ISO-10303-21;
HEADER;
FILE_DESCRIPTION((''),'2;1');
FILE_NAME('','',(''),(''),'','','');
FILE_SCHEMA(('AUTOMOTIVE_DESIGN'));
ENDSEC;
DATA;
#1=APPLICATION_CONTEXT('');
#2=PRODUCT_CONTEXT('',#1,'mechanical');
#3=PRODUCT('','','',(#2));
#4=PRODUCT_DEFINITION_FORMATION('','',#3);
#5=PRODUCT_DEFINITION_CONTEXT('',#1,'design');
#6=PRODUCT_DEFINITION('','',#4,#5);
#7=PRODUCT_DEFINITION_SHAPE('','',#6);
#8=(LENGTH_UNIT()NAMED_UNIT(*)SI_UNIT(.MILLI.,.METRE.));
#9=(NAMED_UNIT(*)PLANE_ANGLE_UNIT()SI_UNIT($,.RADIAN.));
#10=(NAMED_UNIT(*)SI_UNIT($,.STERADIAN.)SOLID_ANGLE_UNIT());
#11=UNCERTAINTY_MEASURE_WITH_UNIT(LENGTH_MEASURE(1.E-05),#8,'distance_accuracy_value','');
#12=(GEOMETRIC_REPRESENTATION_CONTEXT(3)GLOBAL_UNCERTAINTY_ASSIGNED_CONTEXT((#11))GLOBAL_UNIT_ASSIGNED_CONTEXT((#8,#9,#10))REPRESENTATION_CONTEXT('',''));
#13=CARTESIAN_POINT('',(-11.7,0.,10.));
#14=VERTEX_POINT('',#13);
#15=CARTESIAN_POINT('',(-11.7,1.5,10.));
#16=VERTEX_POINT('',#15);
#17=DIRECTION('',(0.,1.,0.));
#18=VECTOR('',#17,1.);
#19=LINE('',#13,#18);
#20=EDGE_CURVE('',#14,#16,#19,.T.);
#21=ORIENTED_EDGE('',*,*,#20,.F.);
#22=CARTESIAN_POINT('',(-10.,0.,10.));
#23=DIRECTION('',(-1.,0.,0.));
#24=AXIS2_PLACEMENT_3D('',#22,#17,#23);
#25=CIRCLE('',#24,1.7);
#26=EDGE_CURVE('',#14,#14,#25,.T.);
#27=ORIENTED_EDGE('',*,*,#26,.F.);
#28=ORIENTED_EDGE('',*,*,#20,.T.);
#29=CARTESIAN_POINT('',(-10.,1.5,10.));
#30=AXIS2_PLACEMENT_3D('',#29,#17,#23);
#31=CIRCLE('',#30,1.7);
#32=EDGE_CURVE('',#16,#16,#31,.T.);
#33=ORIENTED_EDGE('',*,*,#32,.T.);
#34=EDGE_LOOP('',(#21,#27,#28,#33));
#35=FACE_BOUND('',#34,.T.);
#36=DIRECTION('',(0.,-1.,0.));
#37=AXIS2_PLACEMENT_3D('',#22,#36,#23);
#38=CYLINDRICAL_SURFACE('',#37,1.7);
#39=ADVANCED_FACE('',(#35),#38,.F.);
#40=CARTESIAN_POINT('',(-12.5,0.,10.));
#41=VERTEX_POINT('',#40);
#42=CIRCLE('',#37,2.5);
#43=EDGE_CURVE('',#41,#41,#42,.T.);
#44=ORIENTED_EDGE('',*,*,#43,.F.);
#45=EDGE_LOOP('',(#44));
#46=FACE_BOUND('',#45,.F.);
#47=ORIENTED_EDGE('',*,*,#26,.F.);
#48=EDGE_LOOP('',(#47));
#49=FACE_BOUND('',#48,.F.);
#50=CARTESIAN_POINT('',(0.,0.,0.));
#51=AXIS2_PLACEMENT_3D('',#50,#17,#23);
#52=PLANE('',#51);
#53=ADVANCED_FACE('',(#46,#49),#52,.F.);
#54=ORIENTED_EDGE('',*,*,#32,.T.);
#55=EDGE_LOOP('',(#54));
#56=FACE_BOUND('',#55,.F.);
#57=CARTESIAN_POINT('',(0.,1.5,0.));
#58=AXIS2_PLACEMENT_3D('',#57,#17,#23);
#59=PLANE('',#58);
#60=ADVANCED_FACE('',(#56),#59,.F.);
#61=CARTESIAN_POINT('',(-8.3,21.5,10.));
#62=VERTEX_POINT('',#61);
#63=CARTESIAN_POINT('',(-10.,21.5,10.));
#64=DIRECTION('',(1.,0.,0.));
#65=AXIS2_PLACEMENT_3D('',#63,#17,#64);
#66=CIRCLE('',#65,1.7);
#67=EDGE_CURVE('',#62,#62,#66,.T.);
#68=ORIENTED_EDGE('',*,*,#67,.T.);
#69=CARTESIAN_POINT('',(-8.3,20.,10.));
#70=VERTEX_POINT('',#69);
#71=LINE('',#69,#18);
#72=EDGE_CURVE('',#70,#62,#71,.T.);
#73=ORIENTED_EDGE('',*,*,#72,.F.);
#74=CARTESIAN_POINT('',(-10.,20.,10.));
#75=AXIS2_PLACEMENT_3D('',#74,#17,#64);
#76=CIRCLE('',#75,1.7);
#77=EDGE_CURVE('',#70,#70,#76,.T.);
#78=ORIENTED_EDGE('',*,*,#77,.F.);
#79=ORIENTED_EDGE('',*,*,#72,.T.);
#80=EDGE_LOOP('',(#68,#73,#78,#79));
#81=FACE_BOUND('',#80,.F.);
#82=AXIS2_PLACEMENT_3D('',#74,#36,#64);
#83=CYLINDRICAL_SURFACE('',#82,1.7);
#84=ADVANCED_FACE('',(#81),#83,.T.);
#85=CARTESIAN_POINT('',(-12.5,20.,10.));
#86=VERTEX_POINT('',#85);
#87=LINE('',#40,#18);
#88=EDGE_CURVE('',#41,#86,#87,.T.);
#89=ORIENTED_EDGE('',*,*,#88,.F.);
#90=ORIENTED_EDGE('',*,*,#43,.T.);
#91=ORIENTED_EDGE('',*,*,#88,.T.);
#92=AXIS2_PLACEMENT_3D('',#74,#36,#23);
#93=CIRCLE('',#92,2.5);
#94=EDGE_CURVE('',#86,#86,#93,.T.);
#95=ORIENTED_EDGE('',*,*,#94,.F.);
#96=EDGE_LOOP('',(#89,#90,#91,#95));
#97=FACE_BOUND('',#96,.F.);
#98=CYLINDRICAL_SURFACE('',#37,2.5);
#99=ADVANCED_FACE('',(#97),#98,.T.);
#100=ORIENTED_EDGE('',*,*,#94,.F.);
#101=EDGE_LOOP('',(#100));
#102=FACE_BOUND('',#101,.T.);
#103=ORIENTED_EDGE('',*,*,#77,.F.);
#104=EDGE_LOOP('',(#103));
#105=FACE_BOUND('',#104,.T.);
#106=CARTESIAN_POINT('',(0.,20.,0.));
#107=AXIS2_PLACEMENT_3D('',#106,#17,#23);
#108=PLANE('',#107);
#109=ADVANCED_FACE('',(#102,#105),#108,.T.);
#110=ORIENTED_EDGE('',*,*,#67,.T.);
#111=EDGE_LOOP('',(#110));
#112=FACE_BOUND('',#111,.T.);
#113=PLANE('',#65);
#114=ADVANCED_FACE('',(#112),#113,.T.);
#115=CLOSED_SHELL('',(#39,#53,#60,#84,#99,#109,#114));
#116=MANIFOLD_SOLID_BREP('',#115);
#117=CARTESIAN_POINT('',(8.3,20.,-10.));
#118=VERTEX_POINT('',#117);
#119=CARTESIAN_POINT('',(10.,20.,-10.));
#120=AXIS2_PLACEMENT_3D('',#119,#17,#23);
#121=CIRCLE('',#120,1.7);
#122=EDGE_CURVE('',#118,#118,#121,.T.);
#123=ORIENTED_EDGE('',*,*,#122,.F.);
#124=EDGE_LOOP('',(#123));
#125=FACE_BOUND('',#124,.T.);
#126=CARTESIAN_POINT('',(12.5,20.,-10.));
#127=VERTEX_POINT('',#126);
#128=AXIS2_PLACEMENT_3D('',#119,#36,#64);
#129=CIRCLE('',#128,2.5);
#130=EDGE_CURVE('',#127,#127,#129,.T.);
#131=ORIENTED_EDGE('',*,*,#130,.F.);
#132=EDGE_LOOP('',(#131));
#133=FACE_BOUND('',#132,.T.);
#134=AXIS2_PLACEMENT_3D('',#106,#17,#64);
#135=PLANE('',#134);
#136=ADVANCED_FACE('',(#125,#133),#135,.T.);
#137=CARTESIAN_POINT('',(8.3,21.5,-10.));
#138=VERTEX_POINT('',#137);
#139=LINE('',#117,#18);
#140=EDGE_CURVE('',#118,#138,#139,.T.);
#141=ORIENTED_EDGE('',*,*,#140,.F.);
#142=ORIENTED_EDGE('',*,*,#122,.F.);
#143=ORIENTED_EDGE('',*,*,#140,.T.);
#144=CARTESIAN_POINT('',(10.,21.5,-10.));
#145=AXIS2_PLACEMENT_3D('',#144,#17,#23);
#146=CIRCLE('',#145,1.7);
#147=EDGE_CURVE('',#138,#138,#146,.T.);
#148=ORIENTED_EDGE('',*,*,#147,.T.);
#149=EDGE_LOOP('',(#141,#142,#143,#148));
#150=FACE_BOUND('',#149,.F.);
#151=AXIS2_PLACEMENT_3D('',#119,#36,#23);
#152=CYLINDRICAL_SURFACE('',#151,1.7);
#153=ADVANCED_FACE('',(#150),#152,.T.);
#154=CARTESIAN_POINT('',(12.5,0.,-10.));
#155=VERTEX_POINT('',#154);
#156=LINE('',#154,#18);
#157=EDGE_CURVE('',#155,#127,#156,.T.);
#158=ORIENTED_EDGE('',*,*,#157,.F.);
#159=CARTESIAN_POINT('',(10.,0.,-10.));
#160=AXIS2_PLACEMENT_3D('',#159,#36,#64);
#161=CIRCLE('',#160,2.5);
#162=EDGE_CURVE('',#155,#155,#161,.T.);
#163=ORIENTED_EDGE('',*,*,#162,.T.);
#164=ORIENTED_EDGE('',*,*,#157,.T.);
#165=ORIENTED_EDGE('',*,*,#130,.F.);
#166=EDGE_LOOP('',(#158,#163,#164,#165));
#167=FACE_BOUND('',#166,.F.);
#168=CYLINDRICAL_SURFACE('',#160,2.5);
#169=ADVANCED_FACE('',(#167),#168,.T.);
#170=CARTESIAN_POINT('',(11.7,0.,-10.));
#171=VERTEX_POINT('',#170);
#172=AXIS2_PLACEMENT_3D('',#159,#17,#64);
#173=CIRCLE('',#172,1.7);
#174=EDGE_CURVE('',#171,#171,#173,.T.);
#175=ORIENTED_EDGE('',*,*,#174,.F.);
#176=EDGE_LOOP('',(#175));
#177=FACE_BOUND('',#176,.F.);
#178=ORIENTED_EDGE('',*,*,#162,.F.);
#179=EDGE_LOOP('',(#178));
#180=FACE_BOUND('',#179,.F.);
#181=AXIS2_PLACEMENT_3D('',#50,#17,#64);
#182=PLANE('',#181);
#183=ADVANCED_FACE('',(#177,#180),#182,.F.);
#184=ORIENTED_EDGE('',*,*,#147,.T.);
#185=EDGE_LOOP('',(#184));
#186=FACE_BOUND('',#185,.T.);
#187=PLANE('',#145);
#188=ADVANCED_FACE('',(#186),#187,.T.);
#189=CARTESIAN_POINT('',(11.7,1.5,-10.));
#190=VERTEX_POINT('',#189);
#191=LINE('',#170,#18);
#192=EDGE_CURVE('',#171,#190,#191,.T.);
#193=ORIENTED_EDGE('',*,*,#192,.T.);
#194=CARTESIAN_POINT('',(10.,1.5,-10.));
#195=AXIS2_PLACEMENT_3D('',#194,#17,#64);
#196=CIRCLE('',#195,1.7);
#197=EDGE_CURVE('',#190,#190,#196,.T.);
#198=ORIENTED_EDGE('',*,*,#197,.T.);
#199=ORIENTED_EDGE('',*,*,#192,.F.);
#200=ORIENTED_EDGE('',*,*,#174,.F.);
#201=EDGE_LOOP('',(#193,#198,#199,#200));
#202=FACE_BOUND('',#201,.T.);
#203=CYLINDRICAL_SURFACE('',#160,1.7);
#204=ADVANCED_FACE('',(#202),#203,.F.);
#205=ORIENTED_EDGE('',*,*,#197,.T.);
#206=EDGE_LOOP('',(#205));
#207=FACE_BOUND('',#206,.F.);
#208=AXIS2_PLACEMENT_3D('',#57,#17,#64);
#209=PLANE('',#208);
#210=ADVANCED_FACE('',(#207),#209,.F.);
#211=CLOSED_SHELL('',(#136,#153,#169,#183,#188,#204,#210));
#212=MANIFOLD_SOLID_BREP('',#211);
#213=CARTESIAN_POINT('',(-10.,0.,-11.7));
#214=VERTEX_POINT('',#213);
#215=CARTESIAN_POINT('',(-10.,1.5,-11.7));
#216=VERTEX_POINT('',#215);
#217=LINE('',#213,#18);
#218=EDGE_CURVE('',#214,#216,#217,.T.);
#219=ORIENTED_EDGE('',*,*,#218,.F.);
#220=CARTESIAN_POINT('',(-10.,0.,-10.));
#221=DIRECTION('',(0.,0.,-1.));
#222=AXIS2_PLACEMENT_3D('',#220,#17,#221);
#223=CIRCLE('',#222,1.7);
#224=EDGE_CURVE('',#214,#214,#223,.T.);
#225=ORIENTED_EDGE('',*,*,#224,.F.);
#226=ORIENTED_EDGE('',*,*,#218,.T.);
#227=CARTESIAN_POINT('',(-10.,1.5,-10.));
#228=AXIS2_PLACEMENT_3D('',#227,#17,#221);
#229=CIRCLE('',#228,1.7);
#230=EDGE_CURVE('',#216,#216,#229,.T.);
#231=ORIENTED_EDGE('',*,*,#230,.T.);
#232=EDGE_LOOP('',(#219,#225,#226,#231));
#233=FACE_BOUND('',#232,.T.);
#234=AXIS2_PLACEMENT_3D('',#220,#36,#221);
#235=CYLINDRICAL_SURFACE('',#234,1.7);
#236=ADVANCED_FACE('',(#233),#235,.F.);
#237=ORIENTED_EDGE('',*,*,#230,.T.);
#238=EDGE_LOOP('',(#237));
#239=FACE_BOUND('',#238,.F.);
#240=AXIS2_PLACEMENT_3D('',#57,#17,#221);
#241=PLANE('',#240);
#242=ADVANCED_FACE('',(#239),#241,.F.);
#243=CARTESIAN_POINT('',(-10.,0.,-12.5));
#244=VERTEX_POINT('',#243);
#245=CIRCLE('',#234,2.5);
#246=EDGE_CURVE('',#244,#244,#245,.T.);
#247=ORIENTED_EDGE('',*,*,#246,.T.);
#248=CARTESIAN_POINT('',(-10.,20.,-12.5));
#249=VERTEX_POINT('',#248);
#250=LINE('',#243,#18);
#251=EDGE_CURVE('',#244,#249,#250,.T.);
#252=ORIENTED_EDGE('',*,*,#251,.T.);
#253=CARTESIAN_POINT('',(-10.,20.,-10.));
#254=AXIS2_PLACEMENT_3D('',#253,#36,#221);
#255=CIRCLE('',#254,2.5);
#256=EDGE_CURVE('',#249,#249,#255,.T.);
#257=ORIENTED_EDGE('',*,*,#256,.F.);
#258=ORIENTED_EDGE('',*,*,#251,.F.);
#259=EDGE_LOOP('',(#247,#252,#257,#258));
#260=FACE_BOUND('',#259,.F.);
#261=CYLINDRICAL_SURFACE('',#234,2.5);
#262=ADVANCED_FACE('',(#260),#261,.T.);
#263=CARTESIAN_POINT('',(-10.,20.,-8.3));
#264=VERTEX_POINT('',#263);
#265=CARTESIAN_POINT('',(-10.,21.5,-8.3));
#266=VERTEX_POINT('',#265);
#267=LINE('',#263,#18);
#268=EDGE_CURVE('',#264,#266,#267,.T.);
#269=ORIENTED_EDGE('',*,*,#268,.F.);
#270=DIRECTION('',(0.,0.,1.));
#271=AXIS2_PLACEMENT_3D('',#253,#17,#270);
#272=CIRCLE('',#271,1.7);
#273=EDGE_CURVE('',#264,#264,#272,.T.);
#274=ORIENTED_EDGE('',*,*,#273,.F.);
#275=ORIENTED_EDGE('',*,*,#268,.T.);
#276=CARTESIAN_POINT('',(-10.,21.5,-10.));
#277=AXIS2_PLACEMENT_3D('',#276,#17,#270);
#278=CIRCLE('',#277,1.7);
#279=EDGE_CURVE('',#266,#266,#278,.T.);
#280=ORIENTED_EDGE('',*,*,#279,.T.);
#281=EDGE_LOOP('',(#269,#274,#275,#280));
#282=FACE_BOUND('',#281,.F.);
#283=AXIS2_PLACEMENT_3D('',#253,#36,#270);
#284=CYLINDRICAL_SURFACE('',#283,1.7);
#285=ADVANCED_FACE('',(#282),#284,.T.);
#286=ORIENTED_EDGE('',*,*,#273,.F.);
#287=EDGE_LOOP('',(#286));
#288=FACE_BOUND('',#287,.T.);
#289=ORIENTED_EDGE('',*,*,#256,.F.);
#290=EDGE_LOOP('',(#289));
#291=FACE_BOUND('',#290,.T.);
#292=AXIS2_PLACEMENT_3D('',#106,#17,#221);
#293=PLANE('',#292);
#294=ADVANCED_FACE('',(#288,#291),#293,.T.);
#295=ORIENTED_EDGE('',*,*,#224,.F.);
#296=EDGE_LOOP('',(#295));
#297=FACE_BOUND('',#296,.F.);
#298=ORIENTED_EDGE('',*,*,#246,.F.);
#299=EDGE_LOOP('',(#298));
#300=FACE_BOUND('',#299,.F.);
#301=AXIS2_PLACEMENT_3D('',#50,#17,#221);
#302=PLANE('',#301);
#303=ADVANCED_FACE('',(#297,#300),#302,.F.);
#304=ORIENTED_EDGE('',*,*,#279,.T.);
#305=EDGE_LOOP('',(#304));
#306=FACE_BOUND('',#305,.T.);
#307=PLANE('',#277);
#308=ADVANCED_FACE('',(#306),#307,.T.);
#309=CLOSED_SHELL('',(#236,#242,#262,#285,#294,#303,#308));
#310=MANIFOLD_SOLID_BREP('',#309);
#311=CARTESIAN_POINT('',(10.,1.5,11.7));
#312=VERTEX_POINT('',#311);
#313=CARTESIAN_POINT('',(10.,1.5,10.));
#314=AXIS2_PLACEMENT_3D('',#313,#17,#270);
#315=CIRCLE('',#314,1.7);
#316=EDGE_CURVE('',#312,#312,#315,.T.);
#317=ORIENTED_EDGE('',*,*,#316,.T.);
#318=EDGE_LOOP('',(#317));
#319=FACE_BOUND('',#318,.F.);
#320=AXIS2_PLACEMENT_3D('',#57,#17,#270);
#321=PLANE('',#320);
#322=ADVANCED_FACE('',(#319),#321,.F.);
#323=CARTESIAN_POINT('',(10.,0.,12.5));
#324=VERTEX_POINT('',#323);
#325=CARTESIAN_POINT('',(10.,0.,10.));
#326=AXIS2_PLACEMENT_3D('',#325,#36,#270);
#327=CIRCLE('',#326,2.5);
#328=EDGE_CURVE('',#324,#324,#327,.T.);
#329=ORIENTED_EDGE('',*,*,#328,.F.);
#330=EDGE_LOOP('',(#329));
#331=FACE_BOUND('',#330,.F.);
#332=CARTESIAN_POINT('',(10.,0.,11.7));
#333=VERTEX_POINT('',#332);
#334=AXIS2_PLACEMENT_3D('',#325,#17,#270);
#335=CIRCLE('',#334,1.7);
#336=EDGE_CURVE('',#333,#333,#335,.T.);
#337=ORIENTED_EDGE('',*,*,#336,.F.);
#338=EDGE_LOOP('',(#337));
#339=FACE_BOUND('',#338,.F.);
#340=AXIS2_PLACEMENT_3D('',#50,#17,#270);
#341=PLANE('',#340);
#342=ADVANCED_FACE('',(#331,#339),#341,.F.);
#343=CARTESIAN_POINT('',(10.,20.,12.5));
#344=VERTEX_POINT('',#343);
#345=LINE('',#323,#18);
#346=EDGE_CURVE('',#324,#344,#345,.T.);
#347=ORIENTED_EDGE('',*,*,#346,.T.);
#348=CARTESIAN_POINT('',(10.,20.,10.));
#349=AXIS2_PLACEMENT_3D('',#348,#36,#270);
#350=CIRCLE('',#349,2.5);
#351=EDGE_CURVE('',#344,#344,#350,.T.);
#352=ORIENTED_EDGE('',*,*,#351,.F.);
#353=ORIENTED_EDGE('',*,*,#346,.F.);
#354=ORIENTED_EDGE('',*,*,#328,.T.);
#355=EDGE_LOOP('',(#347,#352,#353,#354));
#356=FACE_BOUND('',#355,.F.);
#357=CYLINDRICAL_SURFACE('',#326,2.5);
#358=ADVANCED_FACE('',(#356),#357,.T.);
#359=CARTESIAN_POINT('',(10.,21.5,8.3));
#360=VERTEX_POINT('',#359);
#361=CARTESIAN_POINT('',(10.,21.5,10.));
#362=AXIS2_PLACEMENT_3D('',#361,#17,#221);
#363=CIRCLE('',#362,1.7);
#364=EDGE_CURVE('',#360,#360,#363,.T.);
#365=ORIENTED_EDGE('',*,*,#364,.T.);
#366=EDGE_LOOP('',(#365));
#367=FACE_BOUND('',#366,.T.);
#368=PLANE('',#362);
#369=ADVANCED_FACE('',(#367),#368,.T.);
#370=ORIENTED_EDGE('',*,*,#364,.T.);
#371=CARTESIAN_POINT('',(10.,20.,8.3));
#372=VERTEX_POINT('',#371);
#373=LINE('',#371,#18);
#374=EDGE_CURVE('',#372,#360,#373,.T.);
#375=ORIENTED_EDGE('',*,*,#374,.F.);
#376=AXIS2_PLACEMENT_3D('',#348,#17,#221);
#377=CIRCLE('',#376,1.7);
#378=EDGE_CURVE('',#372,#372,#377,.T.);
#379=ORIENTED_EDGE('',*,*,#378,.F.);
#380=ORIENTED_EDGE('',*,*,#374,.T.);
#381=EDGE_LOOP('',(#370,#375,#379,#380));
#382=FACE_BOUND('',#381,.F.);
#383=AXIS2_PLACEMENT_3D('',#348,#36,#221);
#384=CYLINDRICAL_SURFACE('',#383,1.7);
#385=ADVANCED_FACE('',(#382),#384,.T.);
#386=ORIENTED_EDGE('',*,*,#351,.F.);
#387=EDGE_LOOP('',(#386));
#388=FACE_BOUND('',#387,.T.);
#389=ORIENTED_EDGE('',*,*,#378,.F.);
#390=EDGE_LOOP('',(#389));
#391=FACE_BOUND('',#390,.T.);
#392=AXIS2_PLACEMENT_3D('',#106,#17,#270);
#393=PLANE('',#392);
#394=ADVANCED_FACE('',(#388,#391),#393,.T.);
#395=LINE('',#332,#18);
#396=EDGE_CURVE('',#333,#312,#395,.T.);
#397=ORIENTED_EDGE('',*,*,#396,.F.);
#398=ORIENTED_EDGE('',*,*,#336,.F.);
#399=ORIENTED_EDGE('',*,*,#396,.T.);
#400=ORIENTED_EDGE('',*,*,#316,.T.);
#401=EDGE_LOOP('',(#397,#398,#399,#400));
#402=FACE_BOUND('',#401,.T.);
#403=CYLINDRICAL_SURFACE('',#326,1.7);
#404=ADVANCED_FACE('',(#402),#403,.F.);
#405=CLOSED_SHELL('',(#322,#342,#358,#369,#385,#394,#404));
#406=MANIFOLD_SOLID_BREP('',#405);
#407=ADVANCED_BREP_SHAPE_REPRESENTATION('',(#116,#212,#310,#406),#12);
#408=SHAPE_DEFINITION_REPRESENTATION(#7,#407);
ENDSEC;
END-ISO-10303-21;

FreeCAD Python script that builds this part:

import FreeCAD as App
import Part
import Sketcher
from FreeCAD import Vector
Q = App.Units.Quantity

doc = App.newDocument("Part")
body = doc.addObject("PartDesign::Body", "Body")
body.AllowCompound = True

# Sketch on XZ plane
sketch1 = body.newObject("Sketcher::SketchObject", "Sketch")
sketch1.AttachmentSupport = (doc.getObject("XZ_Plane"), [""])
sketch1.MapMode = "FlatFace"
sketch1.addGeometry(Part.Circle(Vector(-10, 10, 0), Vector(0, 0, 1), 2.5), False)
sketch1.addConstraint(Sketcher.Constraint("Diameter", 0, Q("5 mm")))
sketch1.addConstraint(Sketcher.Constraint("DistanceX", 0, 3, -1, 1, Q("10 mm")))
sketch1.addConstraint(Sketcher.Constraint("DistanceY", -1, 1, 0, 3, Q("10 mm")))
pad1 = body.newObject("PartDesign::Pad", "Pad")
pad1.Profile = sketch1
pad1.Length = 20
pad1.Reversed = True

# Sketch on XZ plane
sketch2 = body.newObject("Sketcher::SketchObject", "Sketch001")
sketch2.AttachmentSupport = (doc.getObject("XZ_Plane"), [""])
sketch2.MapMode = "FlatFace"
sketch2.addGeometry(Part.Circle(Vector(-10, 10, 0), Vector(0, 0, 1), 1.7), False)
sketch2.addConstraint(Sketcher.Constraint("Diameter", 0, Q("3.4 mm")))
sketch2.addConstraint(Sketcher.Constraint("DistanceX", 0, 3, -1, 1, Q("10 mm")))
sketch2.addConstraint(Sketcher.Constraint("DistanceY", -1, 1, 0, 3, Q("10 mm")))
pocket1 = body.newObject("PartDesign::Pocket", "Pocket")
pocket1.Profile = sketch2
pocket1.Length = 1.5

# Sketch on XZ plane
sketch3 = body.newObject("Sketcher::SketchObject", "Sketch002")
sketch3.AttachmentSupport = (doc.getObject("XZ_Plane"), [""])
sketch3.MapMode = "FlatFace"
sketch3.AttachmentOffset = App.Placement(Vector(0, 0, -20), App.Rotation())
sketch3.addGeometry(Part.Circle(Vector(-10, 10, 0), Vector(0, 0, 1), 1.7), False)
sketch3.addConstraint(Sketcher.Constraint("Diameter", 0, Q("3.4 mm")))
sketch3.addConstraint(Sketcher.Constraint("DistanceX", 0, 3, -1, 1, Q("10 mm")))
sketch3.addConstraint(Sketcher.Constraint("DistanceY", -1, 1, 0, 3, Q("10 mm")))
pad2 = body.newObject("PartDesign::Pad", "Pad001")
pad2.Profile = sketch3
pad2.Length = 1.5
pad2.Reversed = True
doc.recompute()

polarpattern = body.newObject("PartDesign::PolarPattern", "PolarPattern")
polarpattern.Originals = [pad1, pad2, pocket1]
polarpattern.Axis = (doc.getObject("Y_Axis"), [""])
polarpattern.Angle = 360
polarpattern.Occurrences = 4
body.Tip = polarpattern

doc.recompute()
